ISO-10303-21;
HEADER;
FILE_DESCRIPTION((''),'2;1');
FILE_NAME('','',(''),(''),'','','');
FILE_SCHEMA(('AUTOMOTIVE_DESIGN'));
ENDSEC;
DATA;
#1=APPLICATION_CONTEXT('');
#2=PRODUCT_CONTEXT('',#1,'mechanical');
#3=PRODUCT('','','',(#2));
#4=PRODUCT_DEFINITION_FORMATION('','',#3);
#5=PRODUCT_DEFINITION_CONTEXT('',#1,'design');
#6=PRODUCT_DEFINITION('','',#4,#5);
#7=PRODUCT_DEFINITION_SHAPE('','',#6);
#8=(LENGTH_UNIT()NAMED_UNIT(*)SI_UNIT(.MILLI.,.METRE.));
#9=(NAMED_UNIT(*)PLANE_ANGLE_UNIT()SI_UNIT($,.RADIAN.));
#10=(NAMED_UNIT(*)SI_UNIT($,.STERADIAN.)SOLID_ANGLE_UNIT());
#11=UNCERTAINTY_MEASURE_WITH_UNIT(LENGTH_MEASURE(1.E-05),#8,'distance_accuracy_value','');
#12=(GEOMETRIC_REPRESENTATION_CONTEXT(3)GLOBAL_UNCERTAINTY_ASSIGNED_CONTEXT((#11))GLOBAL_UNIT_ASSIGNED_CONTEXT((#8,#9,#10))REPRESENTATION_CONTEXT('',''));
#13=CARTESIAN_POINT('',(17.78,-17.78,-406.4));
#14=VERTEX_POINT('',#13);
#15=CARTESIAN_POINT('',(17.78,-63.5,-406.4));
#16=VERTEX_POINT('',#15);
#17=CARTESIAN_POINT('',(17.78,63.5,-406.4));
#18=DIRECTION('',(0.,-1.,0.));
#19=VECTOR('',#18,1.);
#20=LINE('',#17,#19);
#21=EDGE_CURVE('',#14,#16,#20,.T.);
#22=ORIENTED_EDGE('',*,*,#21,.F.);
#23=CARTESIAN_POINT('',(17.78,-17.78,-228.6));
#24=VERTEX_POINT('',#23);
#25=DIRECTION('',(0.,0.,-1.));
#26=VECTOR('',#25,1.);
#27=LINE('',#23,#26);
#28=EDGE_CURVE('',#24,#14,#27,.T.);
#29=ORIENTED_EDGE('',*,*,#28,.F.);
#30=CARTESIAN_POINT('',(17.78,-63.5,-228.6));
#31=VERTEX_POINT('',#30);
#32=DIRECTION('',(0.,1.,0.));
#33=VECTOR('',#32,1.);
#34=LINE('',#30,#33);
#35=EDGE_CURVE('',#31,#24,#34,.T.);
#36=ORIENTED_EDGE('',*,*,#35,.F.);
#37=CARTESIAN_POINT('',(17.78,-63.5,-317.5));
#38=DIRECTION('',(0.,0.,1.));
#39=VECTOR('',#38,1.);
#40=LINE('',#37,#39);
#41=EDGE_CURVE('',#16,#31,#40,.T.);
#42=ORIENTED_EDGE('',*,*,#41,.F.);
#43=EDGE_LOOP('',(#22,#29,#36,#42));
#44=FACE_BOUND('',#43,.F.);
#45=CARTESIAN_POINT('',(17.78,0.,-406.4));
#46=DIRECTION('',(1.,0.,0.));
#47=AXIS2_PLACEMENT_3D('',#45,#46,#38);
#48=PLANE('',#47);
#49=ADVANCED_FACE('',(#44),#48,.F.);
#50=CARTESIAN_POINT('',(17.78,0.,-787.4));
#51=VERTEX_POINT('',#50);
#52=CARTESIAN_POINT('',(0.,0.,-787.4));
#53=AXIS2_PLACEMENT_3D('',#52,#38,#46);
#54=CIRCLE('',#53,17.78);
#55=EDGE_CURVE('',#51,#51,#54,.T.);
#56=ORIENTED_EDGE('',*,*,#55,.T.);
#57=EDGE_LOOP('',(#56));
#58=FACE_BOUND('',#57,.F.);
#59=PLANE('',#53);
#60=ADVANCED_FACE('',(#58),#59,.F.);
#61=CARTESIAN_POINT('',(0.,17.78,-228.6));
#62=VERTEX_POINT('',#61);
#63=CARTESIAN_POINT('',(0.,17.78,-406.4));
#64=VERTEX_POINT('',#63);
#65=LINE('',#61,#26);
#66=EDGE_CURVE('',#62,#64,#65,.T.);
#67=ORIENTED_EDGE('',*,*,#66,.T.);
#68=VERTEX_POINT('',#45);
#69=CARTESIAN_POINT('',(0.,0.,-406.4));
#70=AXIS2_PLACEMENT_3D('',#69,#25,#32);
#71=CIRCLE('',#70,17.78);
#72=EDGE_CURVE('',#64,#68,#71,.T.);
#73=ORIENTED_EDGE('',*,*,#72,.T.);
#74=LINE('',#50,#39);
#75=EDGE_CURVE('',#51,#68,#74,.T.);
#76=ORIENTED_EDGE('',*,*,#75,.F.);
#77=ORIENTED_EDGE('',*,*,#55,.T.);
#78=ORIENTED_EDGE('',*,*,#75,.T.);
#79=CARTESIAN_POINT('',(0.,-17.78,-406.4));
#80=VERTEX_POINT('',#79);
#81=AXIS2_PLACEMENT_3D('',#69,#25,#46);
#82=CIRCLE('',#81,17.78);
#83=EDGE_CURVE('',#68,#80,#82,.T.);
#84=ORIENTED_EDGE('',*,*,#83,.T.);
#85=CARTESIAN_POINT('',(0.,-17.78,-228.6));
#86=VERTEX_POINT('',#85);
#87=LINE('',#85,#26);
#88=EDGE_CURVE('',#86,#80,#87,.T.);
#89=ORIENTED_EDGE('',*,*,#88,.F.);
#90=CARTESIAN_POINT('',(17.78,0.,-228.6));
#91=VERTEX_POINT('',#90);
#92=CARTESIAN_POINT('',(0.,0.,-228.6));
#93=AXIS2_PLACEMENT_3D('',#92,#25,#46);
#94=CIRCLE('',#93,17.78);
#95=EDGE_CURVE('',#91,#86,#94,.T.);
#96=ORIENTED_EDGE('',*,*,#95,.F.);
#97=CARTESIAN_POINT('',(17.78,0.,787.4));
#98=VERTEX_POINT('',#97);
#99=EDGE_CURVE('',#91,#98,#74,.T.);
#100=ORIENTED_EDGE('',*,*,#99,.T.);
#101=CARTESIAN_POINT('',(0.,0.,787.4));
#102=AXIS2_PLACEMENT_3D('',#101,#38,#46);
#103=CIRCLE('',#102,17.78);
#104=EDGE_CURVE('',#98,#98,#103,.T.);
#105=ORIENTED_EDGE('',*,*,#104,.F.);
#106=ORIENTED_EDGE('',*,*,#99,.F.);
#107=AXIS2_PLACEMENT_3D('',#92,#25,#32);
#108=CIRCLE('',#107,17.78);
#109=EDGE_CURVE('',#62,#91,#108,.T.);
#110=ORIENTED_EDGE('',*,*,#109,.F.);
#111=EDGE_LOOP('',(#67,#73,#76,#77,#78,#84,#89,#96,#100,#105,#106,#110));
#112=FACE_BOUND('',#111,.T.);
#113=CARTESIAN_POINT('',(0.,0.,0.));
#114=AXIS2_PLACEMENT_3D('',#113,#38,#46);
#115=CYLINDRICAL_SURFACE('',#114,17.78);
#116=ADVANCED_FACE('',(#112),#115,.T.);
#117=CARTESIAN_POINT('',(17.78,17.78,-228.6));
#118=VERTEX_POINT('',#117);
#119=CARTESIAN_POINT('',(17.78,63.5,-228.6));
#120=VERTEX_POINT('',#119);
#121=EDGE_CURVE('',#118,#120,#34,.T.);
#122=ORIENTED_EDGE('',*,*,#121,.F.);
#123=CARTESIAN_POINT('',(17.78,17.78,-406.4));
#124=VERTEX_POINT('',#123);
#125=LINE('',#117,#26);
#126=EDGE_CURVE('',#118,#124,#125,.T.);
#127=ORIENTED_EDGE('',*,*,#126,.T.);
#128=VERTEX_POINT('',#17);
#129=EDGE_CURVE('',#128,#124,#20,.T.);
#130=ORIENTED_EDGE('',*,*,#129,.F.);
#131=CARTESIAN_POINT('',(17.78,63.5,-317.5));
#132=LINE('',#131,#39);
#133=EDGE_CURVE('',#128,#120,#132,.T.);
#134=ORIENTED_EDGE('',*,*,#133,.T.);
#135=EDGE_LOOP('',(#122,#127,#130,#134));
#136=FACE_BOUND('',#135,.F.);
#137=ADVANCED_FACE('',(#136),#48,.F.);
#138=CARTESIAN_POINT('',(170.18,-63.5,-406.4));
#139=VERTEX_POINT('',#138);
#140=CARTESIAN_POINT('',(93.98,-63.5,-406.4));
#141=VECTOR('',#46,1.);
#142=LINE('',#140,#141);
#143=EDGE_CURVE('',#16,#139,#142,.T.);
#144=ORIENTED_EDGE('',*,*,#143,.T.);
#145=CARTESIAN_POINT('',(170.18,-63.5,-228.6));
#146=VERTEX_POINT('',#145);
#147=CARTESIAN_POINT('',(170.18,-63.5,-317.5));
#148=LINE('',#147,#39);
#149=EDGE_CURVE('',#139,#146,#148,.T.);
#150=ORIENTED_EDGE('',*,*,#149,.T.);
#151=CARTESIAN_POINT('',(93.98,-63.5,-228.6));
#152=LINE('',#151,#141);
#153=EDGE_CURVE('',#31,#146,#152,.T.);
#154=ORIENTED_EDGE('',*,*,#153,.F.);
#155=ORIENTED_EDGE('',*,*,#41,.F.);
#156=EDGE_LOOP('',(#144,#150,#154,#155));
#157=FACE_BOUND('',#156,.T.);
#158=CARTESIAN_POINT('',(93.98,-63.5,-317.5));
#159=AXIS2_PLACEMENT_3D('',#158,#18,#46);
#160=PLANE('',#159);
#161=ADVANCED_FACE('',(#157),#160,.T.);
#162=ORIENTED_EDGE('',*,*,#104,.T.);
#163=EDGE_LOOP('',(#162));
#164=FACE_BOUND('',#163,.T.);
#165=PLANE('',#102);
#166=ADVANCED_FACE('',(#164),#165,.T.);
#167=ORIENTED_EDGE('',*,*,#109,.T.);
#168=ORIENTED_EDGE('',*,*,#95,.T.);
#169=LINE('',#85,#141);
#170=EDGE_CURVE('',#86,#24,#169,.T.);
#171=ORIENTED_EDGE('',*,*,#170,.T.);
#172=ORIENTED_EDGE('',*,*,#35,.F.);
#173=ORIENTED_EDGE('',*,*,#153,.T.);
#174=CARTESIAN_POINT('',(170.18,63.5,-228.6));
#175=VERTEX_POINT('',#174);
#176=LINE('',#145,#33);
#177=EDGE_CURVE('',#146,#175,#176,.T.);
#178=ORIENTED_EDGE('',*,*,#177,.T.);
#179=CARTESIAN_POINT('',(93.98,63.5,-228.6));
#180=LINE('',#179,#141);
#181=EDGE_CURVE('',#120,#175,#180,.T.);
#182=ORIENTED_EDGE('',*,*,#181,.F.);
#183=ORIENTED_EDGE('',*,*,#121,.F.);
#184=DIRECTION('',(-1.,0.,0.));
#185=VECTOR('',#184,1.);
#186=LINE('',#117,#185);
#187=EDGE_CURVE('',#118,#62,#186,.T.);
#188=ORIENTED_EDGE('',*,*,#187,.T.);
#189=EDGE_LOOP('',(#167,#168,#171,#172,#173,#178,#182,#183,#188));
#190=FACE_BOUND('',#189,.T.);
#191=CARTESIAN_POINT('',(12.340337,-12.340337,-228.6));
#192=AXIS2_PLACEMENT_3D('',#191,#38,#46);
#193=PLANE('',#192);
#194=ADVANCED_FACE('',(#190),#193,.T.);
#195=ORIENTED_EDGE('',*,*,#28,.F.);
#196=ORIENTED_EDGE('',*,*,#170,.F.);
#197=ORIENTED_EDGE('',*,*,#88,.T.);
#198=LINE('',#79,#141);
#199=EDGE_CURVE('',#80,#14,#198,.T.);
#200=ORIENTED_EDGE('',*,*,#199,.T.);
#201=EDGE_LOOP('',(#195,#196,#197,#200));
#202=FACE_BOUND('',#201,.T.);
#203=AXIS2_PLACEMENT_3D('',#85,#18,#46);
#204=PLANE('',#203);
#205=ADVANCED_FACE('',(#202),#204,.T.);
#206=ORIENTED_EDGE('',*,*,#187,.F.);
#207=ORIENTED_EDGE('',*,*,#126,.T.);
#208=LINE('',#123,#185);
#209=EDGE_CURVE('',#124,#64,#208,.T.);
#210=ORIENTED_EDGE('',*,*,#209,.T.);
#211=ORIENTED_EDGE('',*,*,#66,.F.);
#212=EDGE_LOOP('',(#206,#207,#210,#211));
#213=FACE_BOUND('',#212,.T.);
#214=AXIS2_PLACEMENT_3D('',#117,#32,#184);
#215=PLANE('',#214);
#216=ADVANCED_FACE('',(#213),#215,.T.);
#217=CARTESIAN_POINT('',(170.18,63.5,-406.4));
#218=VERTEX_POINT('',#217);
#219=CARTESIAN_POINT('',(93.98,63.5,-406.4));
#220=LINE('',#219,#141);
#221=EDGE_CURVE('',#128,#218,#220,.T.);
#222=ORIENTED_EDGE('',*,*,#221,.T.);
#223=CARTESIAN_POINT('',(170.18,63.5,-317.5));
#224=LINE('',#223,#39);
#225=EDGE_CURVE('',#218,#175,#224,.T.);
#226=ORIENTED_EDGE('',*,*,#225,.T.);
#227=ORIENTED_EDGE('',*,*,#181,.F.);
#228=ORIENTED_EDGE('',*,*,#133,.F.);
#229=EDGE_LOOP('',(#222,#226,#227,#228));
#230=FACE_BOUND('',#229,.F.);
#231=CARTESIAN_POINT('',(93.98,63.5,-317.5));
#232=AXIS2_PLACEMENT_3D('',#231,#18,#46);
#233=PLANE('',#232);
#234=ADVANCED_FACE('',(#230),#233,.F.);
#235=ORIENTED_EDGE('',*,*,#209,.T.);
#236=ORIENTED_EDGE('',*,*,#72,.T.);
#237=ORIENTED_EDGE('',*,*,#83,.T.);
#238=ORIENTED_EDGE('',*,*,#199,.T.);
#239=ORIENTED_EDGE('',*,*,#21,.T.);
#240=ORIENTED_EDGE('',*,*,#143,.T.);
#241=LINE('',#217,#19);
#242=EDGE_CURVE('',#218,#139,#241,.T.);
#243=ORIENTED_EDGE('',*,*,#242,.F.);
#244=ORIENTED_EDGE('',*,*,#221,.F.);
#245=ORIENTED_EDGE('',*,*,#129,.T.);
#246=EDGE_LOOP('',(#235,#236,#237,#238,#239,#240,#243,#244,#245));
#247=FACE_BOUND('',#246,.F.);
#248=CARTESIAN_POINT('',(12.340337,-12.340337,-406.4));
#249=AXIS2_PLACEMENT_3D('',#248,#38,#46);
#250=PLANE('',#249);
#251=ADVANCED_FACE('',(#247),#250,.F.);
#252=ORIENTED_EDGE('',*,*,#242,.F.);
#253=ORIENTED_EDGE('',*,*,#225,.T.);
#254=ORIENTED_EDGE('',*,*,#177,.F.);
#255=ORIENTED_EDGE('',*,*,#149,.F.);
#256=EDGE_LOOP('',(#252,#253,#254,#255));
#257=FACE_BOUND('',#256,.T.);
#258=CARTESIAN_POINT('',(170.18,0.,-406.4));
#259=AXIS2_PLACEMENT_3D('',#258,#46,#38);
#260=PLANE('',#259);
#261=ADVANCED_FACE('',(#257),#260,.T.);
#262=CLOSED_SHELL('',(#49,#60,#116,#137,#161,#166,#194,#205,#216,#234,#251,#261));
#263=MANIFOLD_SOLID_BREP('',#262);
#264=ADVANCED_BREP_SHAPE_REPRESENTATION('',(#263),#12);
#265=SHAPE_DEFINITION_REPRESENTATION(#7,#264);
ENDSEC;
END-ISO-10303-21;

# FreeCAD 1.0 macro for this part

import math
import FreeCAD as App
import Part
import Sketcher

V = App.Vector
Q = App.Units.Quantity

doc = App.newDocument("Part")
body = doc.addObject("PartDesign::Body", "Body")
body.AllowCompound = True

sketch1 = doc.addObject("Sketcher::SketchObject", "Sketch")
body.addObject(sketch1)
sketch1.AttachmentSupport = (doc.XY_Plane, [""])
sketch1.MapMode = "FlatFace"
sketch1.addGeometry(Part.Circle(V(0, 0, 0), V(0, 0, 1), 18), False)
sketch1.addConstraint([
    Sketcher.Constraint("Coincident", 0, 3, -1, 1),
    Sketcher.Constraint("Diameter", 0, Q("1.4 in")),
])
pad1 = doc.addObject("PartDesign::Pad", "Pad")
body.addObject(pad1)
pad1.Profile = sketch1
pad1.Length = Q("62 in")
pad1.Midplane = True

sketch2 = doc.addObject("Sketcher::SketchObject", "Sketch001")
body.addObject(sketch2)
sketch2.AttachmentSupport = (doc.XZ_Plane, [""])
sketch2.MapMode = "FlatFace"
sketch2.addGeometry([
    Part.LineSegment(V(18, -229, 0), V(18, -406, 0)),
    Part.LineSegment(V(18, -406, 0), V(170, -406, 0)),
    Part.LineSegment(V(170, -406, 0), V(170, -229, 0)),
    Part.LineSegment(V(170, -229, 0), V(18, -229, 0)),
], False)
sketch2.addConstraint([
    Sketcher.Constraint("Coincident", 0, 2, 1, 1),
    Sketcher.Constraint("Coincident", 1, 2, 2, 1),
    Sketcher.Constraint("Coincident", 2, 2, 3, 1),
    Sketcher.Constraint("Coincident", 3, 2, 0, 1),
    Sketcher.Constraint("Vertical", 0),
    Sketcher.Constraint("Horizontal", 1),
    Sketcher.Constraint("Vertical", 2),
    Sketcher.Constraint("Horizontal", 3),
    Sketcher.Constraint("DistanceX", 1, 1, 1, 2, Q("6 in")),
    Sketcher.Constraint("DistanceY", 0, 2, 0, 1, Q("7 in")),
    Sketcher.Constraint("DistanceY", 0, 2, -1, 1, Q("16 in")),
    Sketcher.Constraint("DistanceX", -1, 1, 0, 2, Q("0.7 in")),
])
pad2 = doc.addObject("PartDesign::Pad", "Pad001")
body.addObject(pad2)
pad2.Profile = sketch2
pad2.Length = Q("5 in")
pad2.Midplane = True

sketch3 = doc.addObject("Sketcher::SketchObject", "Sketch002")
body.addObject(sketch3)
sketch3.AttachmentSupport = (doc.XY_Plane, [""])
sketch3.MapMode = "FlatFace"
sketch3.AttachmentOffset = App.Placement(V(0, 0, -9 * 25.4), App.Rotation())
sketch3.addGeometry([
    Part.LineSegment(V(18, -18, 0), V(18, 0, 0)),
    Part.ArcOfCircle(Part.Circle(V(0, 0, 0), V(0, 0, 1), 18), math.radians(-90), math.radians(0)),
    Part.LineSegment(V(0, -18, 0), V(18, -18, 0)),
    Part.ArcOfCircle(Part.Circle(V(0, 0, 0), V(0, 0, 1), 18), math.radians(0), math.radians(90)),
    Part.LineSegment(V(18, 0, 0), V(18, 18, 0)),
    Part.LineSegment(V(18, 18, 0), V(0, 18, 0)),
], False)
sketch3.addConstraint([
    Sketcher.Constraint("Tangent", 0, 2, 1, 2),
    Sketcher.Constraint("Tangent", 1, 1, 2, 1),
    Sketcher.Constraint("Coincident", 2, 2, 0, 1),
    Sketcher.Constraint("Tangent", 3, 1, 4, 1),
    Sketcher.Constraint("Coincident", 4, 2, 5, 1),
    Sketcher.Constraint("Tangent", 5, 2, 3, 2),
    Sketcher.Constraint("Vertical", 0),
    Sketcher.Constraint("Horizontal", 2),
    Sketcher.Constraint("Vertical", 4),
    Sketcher.Constraint("Horizontal", 5),
    Sketcher.Constraint("Coincident", 1, 3, -1, 1),
    Sketcher.Constraint("Coincident", 3, 3, -1, 1),
    Sketcher.Constraint("Equal", 1, 3),
    Sketcher.Constraint("Radius", 1, Q("0.7 in")),
])
pad3 = doc.addObject("PartDesign::Pad", "Pad002")
body.addObject(pad3)
pad3.Profile = sketch3
pad3.Length = Q("7 in")
pad3.Reversed = True

doc.recompute()
